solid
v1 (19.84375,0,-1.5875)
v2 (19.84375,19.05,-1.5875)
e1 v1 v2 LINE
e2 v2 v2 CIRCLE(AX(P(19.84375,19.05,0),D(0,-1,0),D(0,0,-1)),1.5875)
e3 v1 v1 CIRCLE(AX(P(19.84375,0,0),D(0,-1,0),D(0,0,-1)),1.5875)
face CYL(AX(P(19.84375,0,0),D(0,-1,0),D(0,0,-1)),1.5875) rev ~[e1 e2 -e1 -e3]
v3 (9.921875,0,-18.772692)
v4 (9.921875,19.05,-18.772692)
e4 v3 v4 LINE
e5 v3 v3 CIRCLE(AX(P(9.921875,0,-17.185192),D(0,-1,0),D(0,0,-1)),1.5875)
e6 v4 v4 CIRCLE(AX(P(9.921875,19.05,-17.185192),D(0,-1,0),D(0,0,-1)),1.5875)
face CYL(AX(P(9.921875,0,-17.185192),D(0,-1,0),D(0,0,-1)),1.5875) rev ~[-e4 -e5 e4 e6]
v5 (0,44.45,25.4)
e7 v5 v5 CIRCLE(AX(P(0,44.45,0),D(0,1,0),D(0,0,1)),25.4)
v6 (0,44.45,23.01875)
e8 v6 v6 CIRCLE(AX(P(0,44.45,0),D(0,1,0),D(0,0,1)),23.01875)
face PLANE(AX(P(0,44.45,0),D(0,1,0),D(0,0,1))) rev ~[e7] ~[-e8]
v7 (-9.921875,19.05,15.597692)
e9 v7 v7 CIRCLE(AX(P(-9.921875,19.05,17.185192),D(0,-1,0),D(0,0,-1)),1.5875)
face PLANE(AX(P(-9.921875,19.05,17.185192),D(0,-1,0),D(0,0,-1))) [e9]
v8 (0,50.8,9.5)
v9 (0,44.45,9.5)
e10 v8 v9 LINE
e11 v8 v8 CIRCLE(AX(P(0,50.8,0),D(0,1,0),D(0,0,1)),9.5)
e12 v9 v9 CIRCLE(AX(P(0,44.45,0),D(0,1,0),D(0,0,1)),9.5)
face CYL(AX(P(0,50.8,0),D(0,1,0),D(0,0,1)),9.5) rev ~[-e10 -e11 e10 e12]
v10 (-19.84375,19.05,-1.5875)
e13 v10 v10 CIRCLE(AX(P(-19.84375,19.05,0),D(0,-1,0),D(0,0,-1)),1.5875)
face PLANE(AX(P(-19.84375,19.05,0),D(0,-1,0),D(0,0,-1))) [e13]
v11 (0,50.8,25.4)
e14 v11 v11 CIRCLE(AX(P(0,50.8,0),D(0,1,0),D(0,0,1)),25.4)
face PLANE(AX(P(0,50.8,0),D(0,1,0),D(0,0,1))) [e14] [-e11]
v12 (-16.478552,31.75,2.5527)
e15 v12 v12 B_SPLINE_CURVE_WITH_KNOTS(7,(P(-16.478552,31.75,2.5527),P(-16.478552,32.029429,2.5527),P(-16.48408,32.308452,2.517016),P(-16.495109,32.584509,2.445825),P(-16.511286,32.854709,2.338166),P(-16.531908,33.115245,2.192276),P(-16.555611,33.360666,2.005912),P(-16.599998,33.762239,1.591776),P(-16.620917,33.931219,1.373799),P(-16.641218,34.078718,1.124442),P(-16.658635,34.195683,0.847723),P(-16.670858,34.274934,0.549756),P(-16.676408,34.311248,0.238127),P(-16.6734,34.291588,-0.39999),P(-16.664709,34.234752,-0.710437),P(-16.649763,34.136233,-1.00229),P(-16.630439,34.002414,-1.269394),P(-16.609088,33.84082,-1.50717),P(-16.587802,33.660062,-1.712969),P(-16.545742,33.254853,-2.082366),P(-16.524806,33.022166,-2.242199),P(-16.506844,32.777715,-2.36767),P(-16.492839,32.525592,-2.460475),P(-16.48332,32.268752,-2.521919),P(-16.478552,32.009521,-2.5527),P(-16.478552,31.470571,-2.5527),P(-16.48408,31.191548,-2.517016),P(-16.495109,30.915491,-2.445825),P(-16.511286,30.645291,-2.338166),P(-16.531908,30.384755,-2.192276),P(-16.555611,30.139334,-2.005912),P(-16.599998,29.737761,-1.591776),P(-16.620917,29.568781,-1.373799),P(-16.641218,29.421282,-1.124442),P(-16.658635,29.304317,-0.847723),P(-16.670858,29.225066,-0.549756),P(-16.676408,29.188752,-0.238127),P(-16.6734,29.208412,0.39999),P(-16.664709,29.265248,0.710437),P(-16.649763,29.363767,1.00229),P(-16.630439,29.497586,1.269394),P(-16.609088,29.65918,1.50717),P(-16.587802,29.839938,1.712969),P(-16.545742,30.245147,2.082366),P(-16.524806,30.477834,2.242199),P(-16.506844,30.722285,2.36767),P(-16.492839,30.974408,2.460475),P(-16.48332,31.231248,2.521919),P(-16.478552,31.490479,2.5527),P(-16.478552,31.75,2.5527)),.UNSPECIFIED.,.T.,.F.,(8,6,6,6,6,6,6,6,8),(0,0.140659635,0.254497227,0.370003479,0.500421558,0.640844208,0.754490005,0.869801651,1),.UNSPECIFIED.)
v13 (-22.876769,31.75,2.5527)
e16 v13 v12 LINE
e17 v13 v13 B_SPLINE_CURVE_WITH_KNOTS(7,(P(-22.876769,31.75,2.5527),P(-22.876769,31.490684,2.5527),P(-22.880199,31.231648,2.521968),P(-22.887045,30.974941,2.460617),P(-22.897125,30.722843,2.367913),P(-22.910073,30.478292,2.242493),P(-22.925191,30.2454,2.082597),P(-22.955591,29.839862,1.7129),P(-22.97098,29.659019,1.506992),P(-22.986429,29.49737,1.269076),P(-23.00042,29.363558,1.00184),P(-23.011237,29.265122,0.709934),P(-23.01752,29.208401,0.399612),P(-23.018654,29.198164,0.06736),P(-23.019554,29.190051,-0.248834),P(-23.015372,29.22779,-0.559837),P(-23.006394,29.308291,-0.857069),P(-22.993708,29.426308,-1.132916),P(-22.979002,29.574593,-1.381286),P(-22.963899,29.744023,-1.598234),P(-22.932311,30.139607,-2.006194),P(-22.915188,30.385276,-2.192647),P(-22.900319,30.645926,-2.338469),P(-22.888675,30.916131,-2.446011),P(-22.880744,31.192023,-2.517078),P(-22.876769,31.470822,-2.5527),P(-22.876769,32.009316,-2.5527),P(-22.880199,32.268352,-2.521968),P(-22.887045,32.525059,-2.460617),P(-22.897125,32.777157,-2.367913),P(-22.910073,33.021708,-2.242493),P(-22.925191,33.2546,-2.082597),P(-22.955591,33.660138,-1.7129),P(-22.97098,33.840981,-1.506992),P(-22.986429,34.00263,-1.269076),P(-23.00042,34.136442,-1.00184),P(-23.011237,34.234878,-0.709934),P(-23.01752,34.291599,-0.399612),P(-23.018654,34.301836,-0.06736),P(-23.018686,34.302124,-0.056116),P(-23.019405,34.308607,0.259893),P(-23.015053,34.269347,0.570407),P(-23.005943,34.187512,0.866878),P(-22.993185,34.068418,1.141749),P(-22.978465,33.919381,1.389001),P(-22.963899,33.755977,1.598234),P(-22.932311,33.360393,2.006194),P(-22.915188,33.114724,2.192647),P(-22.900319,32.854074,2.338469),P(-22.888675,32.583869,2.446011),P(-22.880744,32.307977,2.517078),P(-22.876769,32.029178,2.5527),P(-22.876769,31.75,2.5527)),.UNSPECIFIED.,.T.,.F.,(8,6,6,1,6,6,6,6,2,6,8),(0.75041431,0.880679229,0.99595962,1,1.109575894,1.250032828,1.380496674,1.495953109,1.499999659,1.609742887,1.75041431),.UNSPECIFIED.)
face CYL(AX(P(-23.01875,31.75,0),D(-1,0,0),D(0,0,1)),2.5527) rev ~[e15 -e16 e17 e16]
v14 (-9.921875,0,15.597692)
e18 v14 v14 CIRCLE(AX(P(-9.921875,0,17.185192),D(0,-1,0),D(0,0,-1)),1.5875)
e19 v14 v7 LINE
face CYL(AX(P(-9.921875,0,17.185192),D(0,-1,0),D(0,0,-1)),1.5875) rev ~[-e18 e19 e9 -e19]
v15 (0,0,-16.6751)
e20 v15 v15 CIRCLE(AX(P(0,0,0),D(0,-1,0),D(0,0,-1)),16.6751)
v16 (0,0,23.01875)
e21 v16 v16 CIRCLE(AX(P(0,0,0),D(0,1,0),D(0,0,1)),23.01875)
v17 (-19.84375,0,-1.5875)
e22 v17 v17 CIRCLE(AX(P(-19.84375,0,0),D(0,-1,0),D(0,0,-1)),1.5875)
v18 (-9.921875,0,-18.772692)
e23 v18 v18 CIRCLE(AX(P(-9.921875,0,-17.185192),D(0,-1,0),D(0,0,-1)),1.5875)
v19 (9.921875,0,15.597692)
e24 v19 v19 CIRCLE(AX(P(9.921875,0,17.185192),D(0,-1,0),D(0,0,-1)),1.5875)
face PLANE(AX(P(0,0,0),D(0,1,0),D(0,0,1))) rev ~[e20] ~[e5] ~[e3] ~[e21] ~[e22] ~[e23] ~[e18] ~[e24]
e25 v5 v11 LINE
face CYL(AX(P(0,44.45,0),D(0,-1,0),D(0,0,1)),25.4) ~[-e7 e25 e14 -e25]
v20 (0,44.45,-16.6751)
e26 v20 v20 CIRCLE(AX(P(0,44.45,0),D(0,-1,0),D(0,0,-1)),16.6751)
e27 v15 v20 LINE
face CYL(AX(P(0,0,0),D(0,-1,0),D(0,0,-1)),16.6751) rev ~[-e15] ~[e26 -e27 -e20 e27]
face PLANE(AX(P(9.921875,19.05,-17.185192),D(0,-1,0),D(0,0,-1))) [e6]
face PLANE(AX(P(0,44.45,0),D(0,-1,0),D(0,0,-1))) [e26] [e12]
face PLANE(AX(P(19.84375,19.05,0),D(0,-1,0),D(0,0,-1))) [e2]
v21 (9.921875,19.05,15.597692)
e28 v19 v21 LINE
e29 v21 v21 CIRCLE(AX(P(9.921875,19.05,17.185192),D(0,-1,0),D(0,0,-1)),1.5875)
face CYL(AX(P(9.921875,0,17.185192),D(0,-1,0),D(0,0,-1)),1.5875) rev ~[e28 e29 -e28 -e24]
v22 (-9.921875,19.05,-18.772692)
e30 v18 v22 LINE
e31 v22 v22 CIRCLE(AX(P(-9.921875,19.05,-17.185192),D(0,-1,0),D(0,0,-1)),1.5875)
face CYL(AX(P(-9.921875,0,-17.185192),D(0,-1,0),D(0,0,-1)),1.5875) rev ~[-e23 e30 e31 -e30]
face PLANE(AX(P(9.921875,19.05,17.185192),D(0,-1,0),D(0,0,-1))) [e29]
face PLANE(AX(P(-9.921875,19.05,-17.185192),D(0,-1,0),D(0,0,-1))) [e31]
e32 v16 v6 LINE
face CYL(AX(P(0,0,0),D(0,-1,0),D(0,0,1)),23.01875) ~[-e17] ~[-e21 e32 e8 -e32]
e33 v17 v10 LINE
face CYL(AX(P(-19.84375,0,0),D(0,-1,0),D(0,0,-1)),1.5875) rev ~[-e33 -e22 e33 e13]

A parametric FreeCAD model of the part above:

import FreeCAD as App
import Part
import Sketcher
Q = App.Units.Quantity

doc = App.newDocument("Part")
body = doc.addObject("PartDesign::Body", "Body")

sketch1 = body.newObject("Sketcher::SketchObject", "Sketch")
sketch1.AttachmentSupport = (doc.getObject("XZ_Plane"), [""])
sketch1.MapMode = "FlatFace"
sketch1.addGeometry(Part.Circle(App.Vector(0, 0, 0), App.Vector(0, 0, 1), 23), False)
sketch1.addConstraint(Sketcher.Constraint("Coincident", 0, 3, -1, 1))
sketch1.addConstraint(Sketcher.Constraint("Diameter", 0, Q("1.8125 in")))
pad1 = body.newObject("PartDesign::Pad", "Pad")
pad1.Profile = sketch1
pad1.Length = Q("1.75 in")
pad1.Reversed = True

sketch2 = body.newObject("Sketcher::SketchObject", "Sketch001")
sketch2.AttachmentSupport = (doc.getObject("XZ_Plane"), [""])
sketch2.MapMode = "FlatFace"
sketch2.AttachmentOffset = App.Placement(App.Vector(0, 0, -1.75 * 25.4), App.Rotation())
sketch2.addGeometry(Part.Circle(App.Vector(0, 0, 0), App.Vector(0, 0, 1), 25), False)
sketch2.addConstraint(Sketcher.Constraint("Coincident", 0, 3, -1, 1))
sketch2.addConstraint(Sketcher.Constraint("Diameter", 0, Q("2 in")))
pad2 = body.newObject("PartDesign::Pad", "Pad001")
pad2.Profile = sketch2
pad2.Length = Q("0.25 in")
pad2.Reversed = True

sketch3 = body.newObject("Sketcher::SketchObject", "Sketch002")
sketch3.AttachmentSupport = (doc.getObject("XZ_Plane"), [""])
sketch3.MapMode = "FlatFace"
sketch3.AttachmentOffset = App.Placement(App.Vector(0, 0, -2 * 25.4), App.Rotation())
sketch3.addGeometry(Part.Circle(App.Vector(0, 0, 0), App.Vector(0, 0, 1), 10), False)
sketch3.addConstraint(Sketcher.Constraint("Coincident", 0, 3, -1, 1))
sketch3.addConstraint(Sketcher.Constraint("Diameter", 0, Q("19 mm")))
pocket1 = body.newObject("PartDesign::Pocket", "Pocket")
pocket1.Profile = sketch3
pocket1.Type = "ThroughAll"
pocket1.Reversed = True

sketch4 = body.newObject("Sketcher::SketchObject", "Sketch003")
sketch4.AttachmentSupport = (doc.getObject("XZ_Plane"), [""])
sketch4.MapMode = "FlatFace"
sketch4.addGeometry(Part.Circle(App.Vector(0, 0, 0), App.Vector(0, 0, 1), 17), False)
sketch4.addConstraint(Sketcher.Constraint("Coincident", 0, 3, -1, 1))
sketch4.addConstraint(Sketcher.Constraint("Diameter", 0, Q("1.313 in")))
pocket2 = body.newObject("PartDesign::Pocket", "Pocket001")
pocket2.Profile = sketch4
pocket2.Length = Q("1.75 in")

sketch5 = body.newObject("Sketcher::SketchObject", "Sketch004")
sketch5.AttachmentSupport = (doc.getObject("XZ_Plane"), [""])
sketch5.MapMode = "FlatFace"
sketch5.addGeometry(Part.Circle(App.Vector(19.8, 0, 0), App.Vector(0, 0, 1), 1.6), False)
sketch5.addGeometry(Part.Circle(App.Vector(9.9, -17.2, 0), App.Vector(0, 0, 1), 1.6), False)
sketch5.addGeometry(Part.Circle(App.Vector(-9.9, -17.2, 0), App.Vector(0, 0, 1), 1.6), False)
sketch5.addGeometry(Part.Circle(App.Vector(-19.8, 0, 0), App.Vector(0, 0, 1), 1.6), False)
sketch5.addGeometry(Part.Circle(App.Vector(-9.9, 17.2, 0), App.Vector(0, 0, 1), 1.6), False)
sketch5.addGeometry(Part.Circle(App.Vector(9.9, 17.2, 0), App.Vector(0, 0, 1), 1.6), False)
sketch5.addConstraint(Sketcher.Constraint("Equal", 0, 1))
sketch5.addConstraint(Sketcher.Constraint("Equal", 1, 2))
sketch5.addConstraint(Sketcher.Constraint("Equal", 2, 3))
sketch5.addConstraint(Sketcher.Constraint("Equal", 3, 4))
sketch5.addConstraint(Sketcher.Constraint("Equal", 4, 5))
sketch5.addConstraint(Sketcher.Constraint("Symmetric", 0, 3, 3, 3, -1, 1))
sketch5.addConstraint(Sketcher.Constraint("Symmetric", 1, 3, 4, 3, -1, 1))
sketch5.addConstraint(Sketcher.Constraint("Symmetric", 2, 3, 5, 3, -1, 1))
sketch5.addConstraint(Sketcher.Constraint("Symmetric", 1, 3, 2, 3, -2))
sketch5.addConstraint(Sketcher.Constraint("PointOnObject", 0, 3, -1))
sketch5.addConstraint(Sketcher.Constraint("Diameter", 0, Q("0.125 in")))
sketch5.addConstraint(Sketcher.Constraint("DistanceX", -1, 1, 0, 3, Q("0.78125 in")))
sketch5.addConstraint(Sketcher.Constraint("DistanceX", -1, 1, 1, 3, Q("0.390625 in")))
sketch5.addConstraint(Sketcher.Constraint("DistanceY", 1, 3, -1, 1, Q("17.185192 mm")))
pocket3 = body.newObject("PartDesign::Pocket", "Pocket002")
pocket3.Profile = sketch5
pocket3.Length = Q("0.75 in")

sketch6 = body.newObject("Sketcher::SketchObject", "Sketch005")
sketch6.AttachmentSupport = (doc.getObject("YZ_Plane"), [""])
sketch6.MapMode = "FlatFace"
sketch6.AttachmentOffset = App.Placement(App.Vector(0, 0, -0.90625 * 25.4), App.Rotation())
sketch6.addGeometry(Part.Circle(App.Vector(31.8, 0, 0), App.Vector(0, 0, 1), 2.6), False)
sketch6.addConstraint(Sketcher.Constraint("PointOnObject", 0, 3, -1))
sketch6.addConstraint(Sketcher.Constraint("Diameter", 0, Q("0.201 in")))
sketch6.addConstraint(Sketcher.Constraint("DistanceX", -1, 1, 0, 3, Q("1.25 in")))
pocket4 = body.newObject("PartDesign::Pocket", "Pocket003")
pocket4.Profile = sketch6
pocket4.Type = "UpToFirst"
pocket4.Reversed = True

doc.recompute()
